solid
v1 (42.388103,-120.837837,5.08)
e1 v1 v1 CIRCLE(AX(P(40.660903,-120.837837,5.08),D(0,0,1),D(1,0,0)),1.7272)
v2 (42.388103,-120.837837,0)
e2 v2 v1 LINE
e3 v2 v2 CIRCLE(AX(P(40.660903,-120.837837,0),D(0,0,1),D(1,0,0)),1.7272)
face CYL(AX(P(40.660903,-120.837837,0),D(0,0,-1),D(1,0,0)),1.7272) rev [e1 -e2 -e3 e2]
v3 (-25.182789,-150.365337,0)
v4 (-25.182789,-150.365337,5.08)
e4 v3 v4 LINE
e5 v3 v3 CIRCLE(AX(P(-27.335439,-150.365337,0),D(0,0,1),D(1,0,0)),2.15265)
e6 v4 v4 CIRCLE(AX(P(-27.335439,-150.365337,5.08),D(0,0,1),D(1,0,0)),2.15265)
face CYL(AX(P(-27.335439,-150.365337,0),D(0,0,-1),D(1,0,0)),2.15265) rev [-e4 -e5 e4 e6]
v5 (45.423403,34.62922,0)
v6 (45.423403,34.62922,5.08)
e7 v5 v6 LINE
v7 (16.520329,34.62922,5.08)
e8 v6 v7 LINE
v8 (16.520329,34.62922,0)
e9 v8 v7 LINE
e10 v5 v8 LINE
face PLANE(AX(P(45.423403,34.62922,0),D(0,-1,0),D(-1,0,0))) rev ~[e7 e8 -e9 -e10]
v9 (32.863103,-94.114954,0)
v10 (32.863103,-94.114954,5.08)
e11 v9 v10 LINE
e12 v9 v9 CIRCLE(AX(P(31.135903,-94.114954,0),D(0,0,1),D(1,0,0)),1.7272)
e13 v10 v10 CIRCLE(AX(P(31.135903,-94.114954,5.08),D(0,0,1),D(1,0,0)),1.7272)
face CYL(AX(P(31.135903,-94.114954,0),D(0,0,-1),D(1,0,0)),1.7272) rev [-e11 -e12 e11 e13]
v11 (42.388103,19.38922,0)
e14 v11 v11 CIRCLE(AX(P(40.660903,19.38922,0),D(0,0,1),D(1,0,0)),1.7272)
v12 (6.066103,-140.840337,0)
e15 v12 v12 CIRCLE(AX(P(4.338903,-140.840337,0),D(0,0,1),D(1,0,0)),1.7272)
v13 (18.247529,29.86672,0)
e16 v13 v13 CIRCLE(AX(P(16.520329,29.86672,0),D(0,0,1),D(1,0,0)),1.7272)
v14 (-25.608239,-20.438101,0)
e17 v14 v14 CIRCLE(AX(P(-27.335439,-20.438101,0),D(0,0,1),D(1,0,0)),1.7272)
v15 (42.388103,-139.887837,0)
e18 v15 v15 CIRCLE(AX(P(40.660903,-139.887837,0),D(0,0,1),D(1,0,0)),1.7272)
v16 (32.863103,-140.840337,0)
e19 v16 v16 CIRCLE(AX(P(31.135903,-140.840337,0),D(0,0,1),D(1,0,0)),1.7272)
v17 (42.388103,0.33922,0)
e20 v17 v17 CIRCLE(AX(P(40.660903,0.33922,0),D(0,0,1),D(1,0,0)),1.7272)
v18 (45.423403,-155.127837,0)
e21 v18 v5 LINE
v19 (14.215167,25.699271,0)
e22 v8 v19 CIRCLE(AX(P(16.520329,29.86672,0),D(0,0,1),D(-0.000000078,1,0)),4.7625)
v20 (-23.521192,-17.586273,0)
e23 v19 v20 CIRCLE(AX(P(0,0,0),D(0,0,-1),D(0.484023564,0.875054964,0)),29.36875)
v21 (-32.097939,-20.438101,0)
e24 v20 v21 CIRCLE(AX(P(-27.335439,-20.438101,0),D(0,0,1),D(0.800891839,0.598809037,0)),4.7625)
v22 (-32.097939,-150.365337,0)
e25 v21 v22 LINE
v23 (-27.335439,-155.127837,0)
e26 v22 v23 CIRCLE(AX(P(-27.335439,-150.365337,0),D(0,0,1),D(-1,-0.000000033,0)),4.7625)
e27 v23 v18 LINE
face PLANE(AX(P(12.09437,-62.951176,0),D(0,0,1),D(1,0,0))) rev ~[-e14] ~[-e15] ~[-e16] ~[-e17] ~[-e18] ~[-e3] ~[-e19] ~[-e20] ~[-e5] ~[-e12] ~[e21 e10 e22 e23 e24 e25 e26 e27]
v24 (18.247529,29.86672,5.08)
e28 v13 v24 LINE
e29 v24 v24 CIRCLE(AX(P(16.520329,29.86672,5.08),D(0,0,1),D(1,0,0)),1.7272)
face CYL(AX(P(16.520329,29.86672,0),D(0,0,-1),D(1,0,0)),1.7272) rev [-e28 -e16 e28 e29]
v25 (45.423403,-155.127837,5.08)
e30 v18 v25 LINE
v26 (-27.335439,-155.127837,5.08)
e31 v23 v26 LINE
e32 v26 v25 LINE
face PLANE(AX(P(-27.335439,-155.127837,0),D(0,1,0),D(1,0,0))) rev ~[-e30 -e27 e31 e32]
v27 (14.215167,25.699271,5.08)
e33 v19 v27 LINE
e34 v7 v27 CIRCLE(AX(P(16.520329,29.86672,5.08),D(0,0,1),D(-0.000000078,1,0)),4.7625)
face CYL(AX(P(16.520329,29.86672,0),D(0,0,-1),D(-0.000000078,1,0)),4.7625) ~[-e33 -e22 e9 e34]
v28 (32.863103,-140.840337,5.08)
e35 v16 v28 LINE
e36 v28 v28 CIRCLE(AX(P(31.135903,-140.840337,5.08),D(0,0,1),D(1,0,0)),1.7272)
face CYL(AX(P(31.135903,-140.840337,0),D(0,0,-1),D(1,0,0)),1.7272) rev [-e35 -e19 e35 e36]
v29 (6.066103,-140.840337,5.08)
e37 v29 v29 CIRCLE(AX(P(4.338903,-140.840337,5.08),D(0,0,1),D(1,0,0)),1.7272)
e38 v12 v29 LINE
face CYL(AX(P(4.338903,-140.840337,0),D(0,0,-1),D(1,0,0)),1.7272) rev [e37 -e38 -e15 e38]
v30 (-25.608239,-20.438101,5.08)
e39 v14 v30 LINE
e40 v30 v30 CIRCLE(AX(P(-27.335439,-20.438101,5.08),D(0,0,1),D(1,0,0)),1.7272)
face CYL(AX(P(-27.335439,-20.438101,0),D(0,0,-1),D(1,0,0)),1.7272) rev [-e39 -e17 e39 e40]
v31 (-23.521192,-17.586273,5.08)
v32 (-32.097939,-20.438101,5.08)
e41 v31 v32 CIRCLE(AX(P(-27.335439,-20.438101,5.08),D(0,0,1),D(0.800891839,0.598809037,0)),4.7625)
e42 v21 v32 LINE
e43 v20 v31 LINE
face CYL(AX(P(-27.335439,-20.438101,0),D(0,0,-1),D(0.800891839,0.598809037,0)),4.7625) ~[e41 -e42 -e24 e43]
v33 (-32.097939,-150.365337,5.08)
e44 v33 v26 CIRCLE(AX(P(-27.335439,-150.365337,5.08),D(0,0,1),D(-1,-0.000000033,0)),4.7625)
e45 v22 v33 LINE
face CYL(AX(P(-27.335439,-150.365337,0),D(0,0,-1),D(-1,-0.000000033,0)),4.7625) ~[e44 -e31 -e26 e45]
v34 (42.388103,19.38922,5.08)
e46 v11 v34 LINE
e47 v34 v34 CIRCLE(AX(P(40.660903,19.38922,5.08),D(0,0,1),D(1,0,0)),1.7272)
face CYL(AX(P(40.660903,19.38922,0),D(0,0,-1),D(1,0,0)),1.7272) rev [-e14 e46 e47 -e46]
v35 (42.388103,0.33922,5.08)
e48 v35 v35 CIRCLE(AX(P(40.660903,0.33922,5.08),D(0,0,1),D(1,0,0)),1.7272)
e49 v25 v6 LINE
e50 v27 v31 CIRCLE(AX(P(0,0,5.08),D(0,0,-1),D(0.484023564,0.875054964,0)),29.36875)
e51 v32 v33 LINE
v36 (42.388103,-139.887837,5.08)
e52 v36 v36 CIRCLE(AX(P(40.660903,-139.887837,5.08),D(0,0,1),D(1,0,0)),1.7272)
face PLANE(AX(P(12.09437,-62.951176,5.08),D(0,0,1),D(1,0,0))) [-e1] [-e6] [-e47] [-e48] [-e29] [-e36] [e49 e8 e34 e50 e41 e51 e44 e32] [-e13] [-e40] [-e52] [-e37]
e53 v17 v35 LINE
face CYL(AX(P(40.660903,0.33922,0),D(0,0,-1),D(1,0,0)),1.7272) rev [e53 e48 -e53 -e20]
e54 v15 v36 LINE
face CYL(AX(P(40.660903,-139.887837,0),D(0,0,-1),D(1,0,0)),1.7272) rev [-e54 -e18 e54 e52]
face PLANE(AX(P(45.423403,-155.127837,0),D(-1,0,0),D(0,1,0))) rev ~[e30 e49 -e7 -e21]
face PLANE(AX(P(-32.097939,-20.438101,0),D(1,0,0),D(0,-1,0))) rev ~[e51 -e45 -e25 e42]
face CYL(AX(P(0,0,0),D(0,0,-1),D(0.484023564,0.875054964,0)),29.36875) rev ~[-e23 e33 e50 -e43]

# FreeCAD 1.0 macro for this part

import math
import FreeCAD as App
import Part
import Sketcher
Q = App.Units.Quantity

doc = App.newDocument("Part")
body = doc.addObject("PartDesign::Body", "Body")

sketch1 = body.newObject("Sketcher::SketchObject", "Sketch")
sketch1.AttachmentSupport = (doc.getObject("XY_Plane"), [""])
sketch1.MapMode = "FlatFace"
sketch1.addGeometry([
    Part.LineSegment(App.Vector(-27.3, -155.1, 0), App.Vector(45.4, -155.1, 0)),
    Part.LineSegment(App.Vector(45.4, -155.1, 0), App.Vector(45.4, 34.6, 0)),
    Part.LineSegment(App.Vector(45.4, 34.6, 0), App.Vector(16.5, 34.6, 0)),
    Part.ArcOfCircle(Part.Circle(App.Vector(16.5, 29.9, 0), App.Vector(0, 0, 1), 4.8), math.radians(90), math.radians(241)),
    Part.ArcOfCircle(Part.Circle(App.Vector(0, 0, 0), App.Vector(0, 0, 1), 29.4), math.radians(-143), math.radians(61)),
    Part.ArcOfCircle(Part.Circle(App.Vector(-27.3, -20.4, 0), App.Vector(0, 0, 1), 4.8), math.radians(37), math.radians(180)),
    Part.LineSegment(App.Vector(-32.1, -20.4, 0), App.Vector(-32.1, -150.4, 0)),
    Part.ArcOfCircle(Part.Circle(App.Vector(-27.3, -150.4, 0), App.Vector(0, 0, 1), 4.8), math.radians(-180), math.radians(-90)),
    Part.Circle(App.Vector(-27.3, -150.4, 0), App.Vector(0, 0, 1), 2.2),
    Part.Circle(App.Vector(4.3, -140.8, 0), App.Vector(0, 0, 1), 1.7),
    Part.Circle(App.Vector(31.1, -140.8, 0), App.Vector(0, 0, 1), 1.7),
    Part.Circle(App.Vector(40.7, -139.9, 0), App.Vector(0, 0, 1), 1.7),
    Part.Circle(App.Vector(40.7, -120.8, 0), App.Vector(0, 0, 1), 1.7),
    Part.Circle(App.Vector(31.1, -94.1, 0), App.Vector(0, 0, 1), 1.7),
    Part.Circle(App.Vector(-27.3, -20.4, 0), App.Vector(0, 0, 1), 1.7),
    Part.Circle(App.Vector(16.5, 29.9, 0), App.Vector(0, 0, 1), 1.7),
    Part.Circle(App.Vector(40.7, 0.3, 0), App.Vector(0, 0, 1), 1.7),
    Part.Circle(App.Vector(40.7, 19.4, 0), App.Vector(0, 0, 1), 1.7),
], False)
sketch1.addConstraint([
    Sketcher.Constraint("Coincident", 0, 2, 1, 1),
    Sketcher.Constraint("Coincident", 1, 2, 2, 1),
    Sketcher.Constraint("Tangent", 2, 2, 3, 1),
    Sketcher.Constraint("Tangent", 3, 2, 4, 2),
    Sketcher.Constraint("Tangent", 4, 1, 5, 1),
    Sketcher.Constraint("Tangent", 5, 2, 6, 1),
    Sketcher.Constraint("Tangent", 6, 2, 7, 1),
    Sketcher.Constraint("Tangent", 7, 2, 0, 1),
    Sketcher.Constraint("Horizontal", 0),
    Sketcher.Constraint("Vertical", 1),
    Sketcher.Constraint("Horizontal", 2),
    Sketcher.Constraint("Vertical", 6),
    Sketcher.Constraint("Coincident", 4, 3, -1, 1),
    Sketcher.Constraint("Coincident", 8, 3, 7, 3),
    Sketcher.Constraint("Coincident", 14, 3, 5, 3),
    Sketcher.Constraint("Coincident", 15, 3, 3, 3),
    Sketcher.Constraint("Equal", 3, 5),
    Sketcher.Constraint("Equal", 5, 7),
    Sketcher.Constraint("Equal", 9, 10),
    Sketcher.Constraint("Equal", 10, 11),
    Sketcher.Constraint("Equal", 11, 12),
    Sketcher.Constraint("Equal", 12, 13),
    Sketcher.Constraint("Equal", 13, 14),
    Sketcher.Constraint("Equal", 14, 15),
    Sketcher.Constraint("Equal", 15, 16),
    Sketcher.Constraint("Equal", 16, 17),
    Sketcher.Constraint("Horizontal", 9, 3, 10, 3),
    Sketcher.Constraint("Vertical", 11, 3, 12, 3),
    Sketcher.Constraint("Vertical", 10, 3, 13, 3),
    Sketcher.Constraint("Vertical", 12, 3, 16, 3),
    Sketcher.Constraint("Vertical", 16, 3, 17, 3),
    Sketcher.Constraint("Diameter", 9, Q("0.136 in")),
    Sketcher.Constraint("Radius", 3, Q("0.1875 in")),
    Sketcher.Constraint("Radius", 4, Q("1.15625 in")),
    Sketcher.Constraint("Diameter", 8, Q("0.1695 in")),
    Sketcher.Constraint("DistanceY", 0, 2, 11, 3, Q("0.6 in")),
    Sketcher.Constraint("DistanceY", 17, 3, 1, 2, Q("0.6 in")),
    Sketcher.Constraint("DistanceX", 9, 3, 11, 3, Q("1.43 in")),
    Sketcher.Constraint("DistanceY", 11, 3, 12, 3, Q("0.75 in")),
    Sketcher.Constraint("DistanceY", 16, 3, 17, 3, Q("0.75 in")),
    Sketcher.Constraint("DistanceY", 7, 3, 9, 3, Q("0.375 in")),
    Sketcher.Constraint("DistanceX", 9, 3, 10, 3, Q("1.055 in")),
    Sketcher.Constraint("DistanceX", 11, 3, 0, 2, Q("0.1875 in")),
    Sketcher.Constraint("DistanceX", 0, 1, 0, 2, Q("72.758842 mm")),
    Sketcher.Constraint("DistanceY", 5, 3, -1, 1, Q("20.438101 mm")),
    Sketcher.Constraint("DistanceX", 2, 2, 2, 1, Q("28.903074 mm")),
    Sketcher.Constraint("DistanceY", 1, 1, 1, 2, Q("189.757057 mm")),
    Sketcher.Constraint("DistanceY", 13, 3, -1, 1, Q("94.114954 mm")),
])
pad1 = body.newObject("PartDesign::Pad", "Pad")
pad1.Profile = sketch1
pad1.Length = Q("0.2 in")

doc.recompute()
